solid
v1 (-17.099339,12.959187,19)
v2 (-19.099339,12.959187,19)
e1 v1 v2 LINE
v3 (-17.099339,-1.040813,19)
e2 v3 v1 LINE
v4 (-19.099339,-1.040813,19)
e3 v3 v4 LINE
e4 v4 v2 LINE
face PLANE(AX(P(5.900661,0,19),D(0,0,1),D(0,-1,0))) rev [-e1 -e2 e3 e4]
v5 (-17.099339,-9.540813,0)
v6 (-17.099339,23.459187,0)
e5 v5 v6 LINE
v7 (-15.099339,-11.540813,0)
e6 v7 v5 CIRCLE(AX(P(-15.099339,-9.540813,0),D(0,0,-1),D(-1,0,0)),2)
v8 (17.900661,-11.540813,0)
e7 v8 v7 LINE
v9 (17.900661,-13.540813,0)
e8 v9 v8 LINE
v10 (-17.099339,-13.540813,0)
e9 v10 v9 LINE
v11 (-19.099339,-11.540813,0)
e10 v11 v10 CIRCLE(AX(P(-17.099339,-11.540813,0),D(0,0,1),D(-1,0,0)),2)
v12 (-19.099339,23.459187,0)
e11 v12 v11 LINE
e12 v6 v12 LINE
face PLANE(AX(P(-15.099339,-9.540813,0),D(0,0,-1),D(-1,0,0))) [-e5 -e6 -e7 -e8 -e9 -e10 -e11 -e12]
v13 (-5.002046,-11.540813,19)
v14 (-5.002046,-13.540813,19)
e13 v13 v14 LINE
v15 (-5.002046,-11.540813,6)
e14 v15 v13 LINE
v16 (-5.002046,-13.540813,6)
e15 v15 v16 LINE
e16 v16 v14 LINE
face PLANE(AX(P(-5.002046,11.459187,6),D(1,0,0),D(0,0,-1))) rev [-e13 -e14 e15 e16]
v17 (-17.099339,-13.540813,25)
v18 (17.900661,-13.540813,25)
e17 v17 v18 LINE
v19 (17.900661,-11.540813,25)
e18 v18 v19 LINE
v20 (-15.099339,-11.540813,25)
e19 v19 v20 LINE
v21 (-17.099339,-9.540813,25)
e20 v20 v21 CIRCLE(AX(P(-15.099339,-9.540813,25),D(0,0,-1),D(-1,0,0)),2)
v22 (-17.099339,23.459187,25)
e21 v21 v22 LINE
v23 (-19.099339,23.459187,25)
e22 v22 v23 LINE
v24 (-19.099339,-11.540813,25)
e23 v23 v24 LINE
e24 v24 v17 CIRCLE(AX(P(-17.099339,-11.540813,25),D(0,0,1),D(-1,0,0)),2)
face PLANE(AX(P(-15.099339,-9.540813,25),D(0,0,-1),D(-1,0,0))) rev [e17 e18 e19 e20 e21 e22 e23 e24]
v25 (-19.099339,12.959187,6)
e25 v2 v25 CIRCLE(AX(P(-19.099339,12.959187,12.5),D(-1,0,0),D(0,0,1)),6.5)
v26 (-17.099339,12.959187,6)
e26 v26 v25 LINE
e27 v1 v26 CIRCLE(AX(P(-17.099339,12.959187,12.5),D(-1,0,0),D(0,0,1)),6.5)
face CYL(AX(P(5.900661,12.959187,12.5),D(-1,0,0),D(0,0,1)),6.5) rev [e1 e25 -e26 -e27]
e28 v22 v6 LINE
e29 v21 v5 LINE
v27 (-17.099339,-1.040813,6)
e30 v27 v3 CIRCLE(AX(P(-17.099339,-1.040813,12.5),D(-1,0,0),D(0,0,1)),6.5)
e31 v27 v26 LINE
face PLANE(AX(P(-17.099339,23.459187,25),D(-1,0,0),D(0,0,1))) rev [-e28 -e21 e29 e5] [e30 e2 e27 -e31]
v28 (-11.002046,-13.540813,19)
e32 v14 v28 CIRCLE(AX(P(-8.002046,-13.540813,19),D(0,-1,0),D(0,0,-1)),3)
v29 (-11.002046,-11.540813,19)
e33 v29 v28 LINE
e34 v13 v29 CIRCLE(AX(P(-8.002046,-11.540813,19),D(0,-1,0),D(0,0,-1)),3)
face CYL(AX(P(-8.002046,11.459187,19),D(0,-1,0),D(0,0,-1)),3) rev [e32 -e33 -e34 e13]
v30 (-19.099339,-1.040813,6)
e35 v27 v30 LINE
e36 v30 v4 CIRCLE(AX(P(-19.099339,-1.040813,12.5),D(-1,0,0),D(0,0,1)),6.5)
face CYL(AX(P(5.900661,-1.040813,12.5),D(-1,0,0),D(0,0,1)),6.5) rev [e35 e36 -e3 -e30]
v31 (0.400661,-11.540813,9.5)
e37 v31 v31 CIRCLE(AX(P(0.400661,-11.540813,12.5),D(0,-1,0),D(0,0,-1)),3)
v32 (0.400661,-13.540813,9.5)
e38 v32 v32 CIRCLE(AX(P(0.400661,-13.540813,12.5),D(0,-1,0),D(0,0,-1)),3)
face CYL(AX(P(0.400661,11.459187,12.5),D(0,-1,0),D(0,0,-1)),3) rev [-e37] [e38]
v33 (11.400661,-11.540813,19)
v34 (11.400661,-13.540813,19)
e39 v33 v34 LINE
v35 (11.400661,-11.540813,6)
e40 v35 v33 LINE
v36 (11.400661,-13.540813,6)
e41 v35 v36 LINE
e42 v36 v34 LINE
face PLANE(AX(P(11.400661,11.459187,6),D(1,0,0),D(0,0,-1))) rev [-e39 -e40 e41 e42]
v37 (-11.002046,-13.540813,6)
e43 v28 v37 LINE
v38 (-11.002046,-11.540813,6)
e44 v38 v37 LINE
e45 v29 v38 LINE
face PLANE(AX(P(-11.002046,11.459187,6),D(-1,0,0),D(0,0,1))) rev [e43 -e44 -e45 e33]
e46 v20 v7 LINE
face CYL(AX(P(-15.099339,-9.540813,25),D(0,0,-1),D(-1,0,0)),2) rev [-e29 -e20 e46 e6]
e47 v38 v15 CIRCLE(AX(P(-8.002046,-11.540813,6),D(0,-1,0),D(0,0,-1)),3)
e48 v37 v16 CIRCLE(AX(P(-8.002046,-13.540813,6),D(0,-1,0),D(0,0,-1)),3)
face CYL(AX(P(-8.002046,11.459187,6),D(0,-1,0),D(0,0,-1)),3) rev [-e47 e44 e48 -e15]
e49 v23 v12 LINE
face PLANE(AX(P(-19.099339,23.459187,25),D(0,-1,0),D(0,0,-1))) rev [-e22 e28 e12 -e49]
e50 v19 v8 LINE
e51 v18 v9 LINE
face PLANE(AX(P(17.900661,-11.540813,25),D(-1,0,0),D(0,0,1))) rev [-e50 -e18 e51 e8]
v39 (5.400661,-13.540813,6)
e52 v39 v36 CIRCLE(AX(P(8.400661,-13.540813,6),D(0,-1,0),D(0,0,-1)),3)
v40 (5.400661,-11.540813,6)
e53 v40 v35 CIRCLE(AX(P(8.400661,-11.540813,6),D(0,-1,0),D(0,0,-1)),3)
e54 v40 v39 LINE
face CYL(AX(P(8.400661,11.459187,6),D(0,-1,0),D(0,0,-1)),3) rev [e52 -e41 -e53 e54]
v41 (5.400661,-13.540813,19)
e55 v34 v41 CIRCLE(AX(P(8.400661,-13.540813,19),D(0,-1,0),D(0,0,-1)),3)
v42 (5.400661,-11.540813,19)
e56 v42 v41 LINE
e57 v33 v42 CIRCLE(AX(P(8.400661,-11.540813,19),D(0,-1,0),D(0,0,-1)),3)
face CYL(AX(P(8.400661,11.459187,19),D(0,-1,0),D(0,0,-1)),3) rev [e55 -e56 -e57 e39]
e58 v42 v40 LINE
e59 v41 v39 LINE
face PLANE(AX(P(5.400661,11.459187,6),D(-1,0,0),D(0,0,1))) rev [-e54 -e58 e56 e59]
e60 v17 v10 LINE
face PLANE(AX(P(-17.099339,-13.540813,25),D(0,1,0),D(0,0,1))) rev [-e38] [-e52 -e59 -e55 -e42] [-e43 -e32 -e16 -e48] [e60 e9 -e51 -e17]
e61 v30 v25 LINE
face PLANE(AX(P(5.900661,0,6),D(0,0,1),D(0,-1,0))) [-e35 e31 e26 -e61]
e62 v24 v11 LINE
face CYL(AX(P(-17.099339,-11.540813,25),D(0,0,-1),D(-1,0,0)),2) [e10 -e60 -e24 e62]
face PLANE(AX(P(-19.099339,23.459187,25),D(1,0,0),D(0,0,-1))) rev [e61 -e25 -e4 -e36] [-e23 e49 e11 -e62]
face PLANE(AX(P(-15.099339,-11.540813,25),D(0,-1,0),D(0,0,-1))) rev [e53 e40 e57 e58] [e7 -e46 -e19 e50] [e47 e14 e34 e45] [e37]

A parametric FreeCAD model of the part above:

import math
import FreeCAD as App
import Part
import Sketcher
from FreeCAD import Vector
Q = App.Units.Quantity

doc = App.newDocument("Part")
body = doc.addObject("PartDesign::Body", "Body")

# Sketch on XY plane
sketch1 = doc.addObject("Sketcher::SketchObject", "Sketch")
body.addObject(sketch1)
sketch1.AttachmentSupport = (doc.XY_Plane, [""])
sketch1.MapMode = "FlatFace"
sketch1.addGeometry(Part.LineSegment(Vector(-19.1, 23.5, 0), Vector(-19.1, -11.5, 0)), False)
sketch1.addGeometry(Part.ArcOfCircle(Part.Circle(Vector(-17.1, -11.5, 0), Vector(0, 0, 1), 2), math.radians(-180), math.radians(-90)), False)
sketch1.addGeometry(Part.LineSegment(Vector(-17.1, -13.5, 0), Vector(17.9, -13.5, 0)), False)
sketch1.addGeometry(Part.LineSegment(Vector(17.9, -13.5, 0), Vector(17.9, -11.5, 0)), False)
sketch1.addGeometry(Part.LineSegment(Vector(17.9, -11.5, 0), Vector(-15.1, -11.5, 0)), False)
sketch1.addGeometry(Part.ArcOfCircle(Part.Circle(Vector(-15.1, -9.5, 0), Vector(0, 0, 1), 2), math.radians(-180), math.radians(-90)), False)
sketch1.addGeometry(Part.LineSegment(Vector(-17.1, -9.5, 0), Vector(-17.1, 23.5, 0)), False)
sketch1.addGeometry(Part.LineSegment(Vector(-17.1, 23.5, 0), Vector(-19.1, 23.5, 0)), False)
sketch1.addConstraint(Sketcher.Constraint("Tangent", 0, 2, 1, 1))
sketch1.addConstraint(Sketcher.Constraint("Tangent", 1, 2, 2, 1))
sketch1.addConstraint(Sketcher.Constraint("Coincident", 2, 2, 3, 1))
sketch1.addConstraint(Sketcher.Constraint("Coincident", 3, 2, 4, 1))
sketch1.addConstraint(Sketcher.Constraint("Tangent", 4, 2, 5, 2))
sketch1.addConstraint(Sketcher.Constraint("Tangent", 5, 1, 6, 1))
sketch1.addConstraint(Sketcher.Constraint("Coincident", 6, 2, 7, 1))
sketch1.addConstraint(Sketcher.Constraint("Coincident", 7, 2, 0, 1))
sketch1.addConstraint(Sketcher.Constraint("Vertical", 0))
sketch1.addConstraint(Sketcher.Constraint("Horizontal", 2))
sketch1.addConstraint(Sketcher.Constraint("Vertical", 3))
sketch1.addConstraint(Sketcher.Constraint("Horizontal", 4))
sketch1.addConstraint(Sketcher.Constraint("Vertical", 6))
sketch1.addConstraint(Sketcher.Constraint("Horizontal", 7))
sketch1.addConstraint(Sketcher.Constraint("Equal", 1, 5))
sketch1.addConstraint(Sketcher.Constraint("Horizontal", 0, 2, 3, 2))
sketch1.addConstraint(Sketcher.Constraint("Vertical", 1, 2, 5, 1))
sketch1.addConstraint(Sketcher.Constraint("Equal", 2, 0))
sketch1.addConstraint(Sketcher.Constraint("Radius", 1, Q("2 mm")))
sketch1.addConstraint(Sketcher.Constraint("DistanceX", 2, 1, 2, 2, Q("35 mm")))
sketch1.addConstraint(Sketcher.Constraint("DistanceX", 1, 3, -1, 1, Q("17.099339 mm")))
sketch1.addConstraint(Sketcher.Constraint("DistanceY", 1, 3, -1, 1, Q("11.540813 mm")))
pad1 = doc.addObject("PartDesign::Pad", "Pad")
body.addObject(pad1)
pad1.Profile = sketch1
pad1.Length = 25

# Sketch on YZ plane
sketch2 = doc.addObject("Sketcher::SketchObject", "Sketch001")
body.addObject(sketch2)
sketch2.AttachmentSupport = (doc.YZ_Plane, [""])
sketch2.MapMode = "FlatFace"
sketch2.AttachmentOffset = App.Placement(Vector(0, 0, -19.099339), App.Rotation())
sketch2.addGeometry(Part.LineSegment(Vector(13, 6, 0), Vector(-1, 6, 0)), False)
sketch2.addGeometry(Part.ArcOfCircle(Part.Circle(Vector(-1, 12, 0), Vector(0, 0, 1), 6), math.radians(90), math.radians(270)), False)
sketch2.addGeometry(Part.LineSegment(Vector(-1, 19, 0), Vector(13, 19, 0)), False)
sketch2.addGeometry(Part.ArcOfCircle(Part.Circle(Vector(13, 12, 0), Vector(0, 0, 1), 6), math.radians(-90), math.radians(90)), False)
sketch2.addConstraint(Sketcher.Constraint("Tangent", 0, 2, 1, 2))
sketch2.addConstraint(Sketcher.Constraint("Tangent", 1, 1, 2, 1))
sketch2.addConstraint(Sketcher.Constraint("Tangent", 2, 2, 3, 2))
sketch2.addConstraint(Sketcher.Constraint("Tangent", 3, 1, 0, 1))
sketch2.addConstraint(Sketcher.Constraint("Horizontal", 0))
sketch2.addConstraint(Sketcher.Constraint("Horizontal", 2))
sketch2.addConstraint(Sketcher.Constraint("Radius", 1, Q("6.5 mm")))
sketch2.addConstraint(Sketcher.Constraint("DistanceX", 0, 2, 0, 1, Q("14 mm")))
sketch2.addConstraint(Sketcher.Constraint("DistanceY", -1, 1, 0, 2, Q("6 mm")))
sketch2.addConstraint(Sketcher.Constraint("DistanceX", 1, 3, -1, 1, Q("1.040813 mm")))
pocket1 = doc.addObject("PartDesign::Pocket", "Pocket")
body.addObject(pocket1)
pocket1.Profile = sketch2
pocket1.Length = 25
pocket1.Reversed = True

# Sketch on XZ plane
sketch3 = doc.addObject("Sketcher::SketchObject", "Sketch002")
body.addObject(sketch3)
sketch3.AttachmentSupport = (doc.XZ_Plane, [""])
sketch3.MapMode = "FlatFace"
sketch3.AttachmentOffset = App.Placement(Vector(0, 0, 13.540813), App.Rotation())
sketch3.addGeometry(Part.Circle(Vector(0.4, 12.5, 0), Vector(0, 0, 1), 3), False)
sketch3.addGeometry(Part.LineSegment(Vector(5.4, 19, 0), Vector(5.4, 6, 0)), False)
sketch3.addGeometry(Part.ArcOfCircle(Part.Circle(Vector(8.4, 6, 0), Vector(0, 0, 1), 3), math.radians(180), math.radians(360)), False)
sketch3.addGeometry(Part.LineSegment(Vector(11.4, 6, 0), Vector(11.4, 19, 0)), False)
sketch3.addGeometry(Part.ArcOfCircle(Part.Circle(Vector(8.4, 19, 0), Vector(0, 0, 1), 3), math.radians(0), math.radians(180)), False)
sketch3.addGeometry(Part.LineSegment(Vector(-11, 19, 0), Vector(-11, 6, 0)), False)
sketch3.addGeometry(Part.ArcOfCircle(Part.Circle(Vector(-8, 6, 0), Vector(0, 0, 1), 3), math.radians(180), math.radians(360)), False)
sketch3.addGeometry(Part.LineSegment(Vector(-5, 6, 0), Vector(-5, 19, 0)), False)
sketch3.addGeometry(Part.ArcOfCircle(Part.Circle(Vector(-8, 19, 0), Vector(0, 0, 1), 3), math.radians(0), math.radians(180)), False)
sketch3.addConstraint(Sketcher.Constraint("Tangent", 1, 2, 2, 1))
sketch3.addConstraint(Sketcher.Constraint("Tangent", 2, 2, 3, 1))
sketch3.addConstraint(Sketcher.Constraint("Tangent", 3, 2, 4, 1))
sketch3.addConstraint(Sketcher.Constraint("Tangent", 4, 2, 1, 1))
sketch3.addConstraint(Sketcher.Constraint("Tangent", 5, 2, 6, 1))
sketch3.addConstraint(Sketcher.Constraint("Tangent", 6, 2, 7, 1))
sketch3.addConstraint(Sketcher.Constraint("Tangent", 7, 2, 8, 1))
sketch3.addConstraint(Sketcher.Constraint("Tangent", 8, 2, 5, 1))
sketch3.addConstraint(Sketcher.Constraint("Vertical", 1))
sketch3.addConstraint(Sketcher.Constraint("Vertical", 3))
sketch3.addConstraint(Sketcher.Constraint("Vertical", 5))
sketch3.addConstraint(Sketcher.Constraint("Vertical", 7))
sketch3.addConstraint(Sketcher.Constraint("Equal", 0, 2))
sketch3.addConstraint(Sketcher.Constraint("Equal", 4, 6))
sketch3.addConstraint(Sketcher.Constraint("Horizontal", 2, 3, 6, 3))
sketch3.addConstraint(Sketcher.Constraint("Horizontal", 4, 3, 8, 3))
sketch3.addConstraint(Sketcher.Constraint("Diameter", 0, Q("6 mm")))
sketch3.addConstraint(Sketcher.Constraint("DistanceY", 1, 2, 1, 1, Q("13 mm")))
sketch3.addConstraint(Sketcher.Constraint("DistanceY", -1, 1, 2, 3, Q("6 mm")))
sketch3.addConstraint(Sketcher.Constraint("DistanceX", 0, 3, 2, 3, Q("8 mm")))
sketch3.addConstraint(Sketcher.Constraint("DistanceY", -1, 1, 0, 3, Q("12.5 mm")))
sketch3.addConstraint(Sketcher.Constraint("DistanceX", -1, 1, 0, 3, Q("0.400661 mm")))
sketch3.addConstraint(Sketcher.Constraint("DistanceX", 6, 3, -1, 1, Q("8.002046 mm")))
pocket2 = doc.addObject("PartDesign::Pocket", "Pocket001")
body.addObject(pocket2)
pocket2.Profile = sketch3
pocket2.Length = 25

doc.recompute()
